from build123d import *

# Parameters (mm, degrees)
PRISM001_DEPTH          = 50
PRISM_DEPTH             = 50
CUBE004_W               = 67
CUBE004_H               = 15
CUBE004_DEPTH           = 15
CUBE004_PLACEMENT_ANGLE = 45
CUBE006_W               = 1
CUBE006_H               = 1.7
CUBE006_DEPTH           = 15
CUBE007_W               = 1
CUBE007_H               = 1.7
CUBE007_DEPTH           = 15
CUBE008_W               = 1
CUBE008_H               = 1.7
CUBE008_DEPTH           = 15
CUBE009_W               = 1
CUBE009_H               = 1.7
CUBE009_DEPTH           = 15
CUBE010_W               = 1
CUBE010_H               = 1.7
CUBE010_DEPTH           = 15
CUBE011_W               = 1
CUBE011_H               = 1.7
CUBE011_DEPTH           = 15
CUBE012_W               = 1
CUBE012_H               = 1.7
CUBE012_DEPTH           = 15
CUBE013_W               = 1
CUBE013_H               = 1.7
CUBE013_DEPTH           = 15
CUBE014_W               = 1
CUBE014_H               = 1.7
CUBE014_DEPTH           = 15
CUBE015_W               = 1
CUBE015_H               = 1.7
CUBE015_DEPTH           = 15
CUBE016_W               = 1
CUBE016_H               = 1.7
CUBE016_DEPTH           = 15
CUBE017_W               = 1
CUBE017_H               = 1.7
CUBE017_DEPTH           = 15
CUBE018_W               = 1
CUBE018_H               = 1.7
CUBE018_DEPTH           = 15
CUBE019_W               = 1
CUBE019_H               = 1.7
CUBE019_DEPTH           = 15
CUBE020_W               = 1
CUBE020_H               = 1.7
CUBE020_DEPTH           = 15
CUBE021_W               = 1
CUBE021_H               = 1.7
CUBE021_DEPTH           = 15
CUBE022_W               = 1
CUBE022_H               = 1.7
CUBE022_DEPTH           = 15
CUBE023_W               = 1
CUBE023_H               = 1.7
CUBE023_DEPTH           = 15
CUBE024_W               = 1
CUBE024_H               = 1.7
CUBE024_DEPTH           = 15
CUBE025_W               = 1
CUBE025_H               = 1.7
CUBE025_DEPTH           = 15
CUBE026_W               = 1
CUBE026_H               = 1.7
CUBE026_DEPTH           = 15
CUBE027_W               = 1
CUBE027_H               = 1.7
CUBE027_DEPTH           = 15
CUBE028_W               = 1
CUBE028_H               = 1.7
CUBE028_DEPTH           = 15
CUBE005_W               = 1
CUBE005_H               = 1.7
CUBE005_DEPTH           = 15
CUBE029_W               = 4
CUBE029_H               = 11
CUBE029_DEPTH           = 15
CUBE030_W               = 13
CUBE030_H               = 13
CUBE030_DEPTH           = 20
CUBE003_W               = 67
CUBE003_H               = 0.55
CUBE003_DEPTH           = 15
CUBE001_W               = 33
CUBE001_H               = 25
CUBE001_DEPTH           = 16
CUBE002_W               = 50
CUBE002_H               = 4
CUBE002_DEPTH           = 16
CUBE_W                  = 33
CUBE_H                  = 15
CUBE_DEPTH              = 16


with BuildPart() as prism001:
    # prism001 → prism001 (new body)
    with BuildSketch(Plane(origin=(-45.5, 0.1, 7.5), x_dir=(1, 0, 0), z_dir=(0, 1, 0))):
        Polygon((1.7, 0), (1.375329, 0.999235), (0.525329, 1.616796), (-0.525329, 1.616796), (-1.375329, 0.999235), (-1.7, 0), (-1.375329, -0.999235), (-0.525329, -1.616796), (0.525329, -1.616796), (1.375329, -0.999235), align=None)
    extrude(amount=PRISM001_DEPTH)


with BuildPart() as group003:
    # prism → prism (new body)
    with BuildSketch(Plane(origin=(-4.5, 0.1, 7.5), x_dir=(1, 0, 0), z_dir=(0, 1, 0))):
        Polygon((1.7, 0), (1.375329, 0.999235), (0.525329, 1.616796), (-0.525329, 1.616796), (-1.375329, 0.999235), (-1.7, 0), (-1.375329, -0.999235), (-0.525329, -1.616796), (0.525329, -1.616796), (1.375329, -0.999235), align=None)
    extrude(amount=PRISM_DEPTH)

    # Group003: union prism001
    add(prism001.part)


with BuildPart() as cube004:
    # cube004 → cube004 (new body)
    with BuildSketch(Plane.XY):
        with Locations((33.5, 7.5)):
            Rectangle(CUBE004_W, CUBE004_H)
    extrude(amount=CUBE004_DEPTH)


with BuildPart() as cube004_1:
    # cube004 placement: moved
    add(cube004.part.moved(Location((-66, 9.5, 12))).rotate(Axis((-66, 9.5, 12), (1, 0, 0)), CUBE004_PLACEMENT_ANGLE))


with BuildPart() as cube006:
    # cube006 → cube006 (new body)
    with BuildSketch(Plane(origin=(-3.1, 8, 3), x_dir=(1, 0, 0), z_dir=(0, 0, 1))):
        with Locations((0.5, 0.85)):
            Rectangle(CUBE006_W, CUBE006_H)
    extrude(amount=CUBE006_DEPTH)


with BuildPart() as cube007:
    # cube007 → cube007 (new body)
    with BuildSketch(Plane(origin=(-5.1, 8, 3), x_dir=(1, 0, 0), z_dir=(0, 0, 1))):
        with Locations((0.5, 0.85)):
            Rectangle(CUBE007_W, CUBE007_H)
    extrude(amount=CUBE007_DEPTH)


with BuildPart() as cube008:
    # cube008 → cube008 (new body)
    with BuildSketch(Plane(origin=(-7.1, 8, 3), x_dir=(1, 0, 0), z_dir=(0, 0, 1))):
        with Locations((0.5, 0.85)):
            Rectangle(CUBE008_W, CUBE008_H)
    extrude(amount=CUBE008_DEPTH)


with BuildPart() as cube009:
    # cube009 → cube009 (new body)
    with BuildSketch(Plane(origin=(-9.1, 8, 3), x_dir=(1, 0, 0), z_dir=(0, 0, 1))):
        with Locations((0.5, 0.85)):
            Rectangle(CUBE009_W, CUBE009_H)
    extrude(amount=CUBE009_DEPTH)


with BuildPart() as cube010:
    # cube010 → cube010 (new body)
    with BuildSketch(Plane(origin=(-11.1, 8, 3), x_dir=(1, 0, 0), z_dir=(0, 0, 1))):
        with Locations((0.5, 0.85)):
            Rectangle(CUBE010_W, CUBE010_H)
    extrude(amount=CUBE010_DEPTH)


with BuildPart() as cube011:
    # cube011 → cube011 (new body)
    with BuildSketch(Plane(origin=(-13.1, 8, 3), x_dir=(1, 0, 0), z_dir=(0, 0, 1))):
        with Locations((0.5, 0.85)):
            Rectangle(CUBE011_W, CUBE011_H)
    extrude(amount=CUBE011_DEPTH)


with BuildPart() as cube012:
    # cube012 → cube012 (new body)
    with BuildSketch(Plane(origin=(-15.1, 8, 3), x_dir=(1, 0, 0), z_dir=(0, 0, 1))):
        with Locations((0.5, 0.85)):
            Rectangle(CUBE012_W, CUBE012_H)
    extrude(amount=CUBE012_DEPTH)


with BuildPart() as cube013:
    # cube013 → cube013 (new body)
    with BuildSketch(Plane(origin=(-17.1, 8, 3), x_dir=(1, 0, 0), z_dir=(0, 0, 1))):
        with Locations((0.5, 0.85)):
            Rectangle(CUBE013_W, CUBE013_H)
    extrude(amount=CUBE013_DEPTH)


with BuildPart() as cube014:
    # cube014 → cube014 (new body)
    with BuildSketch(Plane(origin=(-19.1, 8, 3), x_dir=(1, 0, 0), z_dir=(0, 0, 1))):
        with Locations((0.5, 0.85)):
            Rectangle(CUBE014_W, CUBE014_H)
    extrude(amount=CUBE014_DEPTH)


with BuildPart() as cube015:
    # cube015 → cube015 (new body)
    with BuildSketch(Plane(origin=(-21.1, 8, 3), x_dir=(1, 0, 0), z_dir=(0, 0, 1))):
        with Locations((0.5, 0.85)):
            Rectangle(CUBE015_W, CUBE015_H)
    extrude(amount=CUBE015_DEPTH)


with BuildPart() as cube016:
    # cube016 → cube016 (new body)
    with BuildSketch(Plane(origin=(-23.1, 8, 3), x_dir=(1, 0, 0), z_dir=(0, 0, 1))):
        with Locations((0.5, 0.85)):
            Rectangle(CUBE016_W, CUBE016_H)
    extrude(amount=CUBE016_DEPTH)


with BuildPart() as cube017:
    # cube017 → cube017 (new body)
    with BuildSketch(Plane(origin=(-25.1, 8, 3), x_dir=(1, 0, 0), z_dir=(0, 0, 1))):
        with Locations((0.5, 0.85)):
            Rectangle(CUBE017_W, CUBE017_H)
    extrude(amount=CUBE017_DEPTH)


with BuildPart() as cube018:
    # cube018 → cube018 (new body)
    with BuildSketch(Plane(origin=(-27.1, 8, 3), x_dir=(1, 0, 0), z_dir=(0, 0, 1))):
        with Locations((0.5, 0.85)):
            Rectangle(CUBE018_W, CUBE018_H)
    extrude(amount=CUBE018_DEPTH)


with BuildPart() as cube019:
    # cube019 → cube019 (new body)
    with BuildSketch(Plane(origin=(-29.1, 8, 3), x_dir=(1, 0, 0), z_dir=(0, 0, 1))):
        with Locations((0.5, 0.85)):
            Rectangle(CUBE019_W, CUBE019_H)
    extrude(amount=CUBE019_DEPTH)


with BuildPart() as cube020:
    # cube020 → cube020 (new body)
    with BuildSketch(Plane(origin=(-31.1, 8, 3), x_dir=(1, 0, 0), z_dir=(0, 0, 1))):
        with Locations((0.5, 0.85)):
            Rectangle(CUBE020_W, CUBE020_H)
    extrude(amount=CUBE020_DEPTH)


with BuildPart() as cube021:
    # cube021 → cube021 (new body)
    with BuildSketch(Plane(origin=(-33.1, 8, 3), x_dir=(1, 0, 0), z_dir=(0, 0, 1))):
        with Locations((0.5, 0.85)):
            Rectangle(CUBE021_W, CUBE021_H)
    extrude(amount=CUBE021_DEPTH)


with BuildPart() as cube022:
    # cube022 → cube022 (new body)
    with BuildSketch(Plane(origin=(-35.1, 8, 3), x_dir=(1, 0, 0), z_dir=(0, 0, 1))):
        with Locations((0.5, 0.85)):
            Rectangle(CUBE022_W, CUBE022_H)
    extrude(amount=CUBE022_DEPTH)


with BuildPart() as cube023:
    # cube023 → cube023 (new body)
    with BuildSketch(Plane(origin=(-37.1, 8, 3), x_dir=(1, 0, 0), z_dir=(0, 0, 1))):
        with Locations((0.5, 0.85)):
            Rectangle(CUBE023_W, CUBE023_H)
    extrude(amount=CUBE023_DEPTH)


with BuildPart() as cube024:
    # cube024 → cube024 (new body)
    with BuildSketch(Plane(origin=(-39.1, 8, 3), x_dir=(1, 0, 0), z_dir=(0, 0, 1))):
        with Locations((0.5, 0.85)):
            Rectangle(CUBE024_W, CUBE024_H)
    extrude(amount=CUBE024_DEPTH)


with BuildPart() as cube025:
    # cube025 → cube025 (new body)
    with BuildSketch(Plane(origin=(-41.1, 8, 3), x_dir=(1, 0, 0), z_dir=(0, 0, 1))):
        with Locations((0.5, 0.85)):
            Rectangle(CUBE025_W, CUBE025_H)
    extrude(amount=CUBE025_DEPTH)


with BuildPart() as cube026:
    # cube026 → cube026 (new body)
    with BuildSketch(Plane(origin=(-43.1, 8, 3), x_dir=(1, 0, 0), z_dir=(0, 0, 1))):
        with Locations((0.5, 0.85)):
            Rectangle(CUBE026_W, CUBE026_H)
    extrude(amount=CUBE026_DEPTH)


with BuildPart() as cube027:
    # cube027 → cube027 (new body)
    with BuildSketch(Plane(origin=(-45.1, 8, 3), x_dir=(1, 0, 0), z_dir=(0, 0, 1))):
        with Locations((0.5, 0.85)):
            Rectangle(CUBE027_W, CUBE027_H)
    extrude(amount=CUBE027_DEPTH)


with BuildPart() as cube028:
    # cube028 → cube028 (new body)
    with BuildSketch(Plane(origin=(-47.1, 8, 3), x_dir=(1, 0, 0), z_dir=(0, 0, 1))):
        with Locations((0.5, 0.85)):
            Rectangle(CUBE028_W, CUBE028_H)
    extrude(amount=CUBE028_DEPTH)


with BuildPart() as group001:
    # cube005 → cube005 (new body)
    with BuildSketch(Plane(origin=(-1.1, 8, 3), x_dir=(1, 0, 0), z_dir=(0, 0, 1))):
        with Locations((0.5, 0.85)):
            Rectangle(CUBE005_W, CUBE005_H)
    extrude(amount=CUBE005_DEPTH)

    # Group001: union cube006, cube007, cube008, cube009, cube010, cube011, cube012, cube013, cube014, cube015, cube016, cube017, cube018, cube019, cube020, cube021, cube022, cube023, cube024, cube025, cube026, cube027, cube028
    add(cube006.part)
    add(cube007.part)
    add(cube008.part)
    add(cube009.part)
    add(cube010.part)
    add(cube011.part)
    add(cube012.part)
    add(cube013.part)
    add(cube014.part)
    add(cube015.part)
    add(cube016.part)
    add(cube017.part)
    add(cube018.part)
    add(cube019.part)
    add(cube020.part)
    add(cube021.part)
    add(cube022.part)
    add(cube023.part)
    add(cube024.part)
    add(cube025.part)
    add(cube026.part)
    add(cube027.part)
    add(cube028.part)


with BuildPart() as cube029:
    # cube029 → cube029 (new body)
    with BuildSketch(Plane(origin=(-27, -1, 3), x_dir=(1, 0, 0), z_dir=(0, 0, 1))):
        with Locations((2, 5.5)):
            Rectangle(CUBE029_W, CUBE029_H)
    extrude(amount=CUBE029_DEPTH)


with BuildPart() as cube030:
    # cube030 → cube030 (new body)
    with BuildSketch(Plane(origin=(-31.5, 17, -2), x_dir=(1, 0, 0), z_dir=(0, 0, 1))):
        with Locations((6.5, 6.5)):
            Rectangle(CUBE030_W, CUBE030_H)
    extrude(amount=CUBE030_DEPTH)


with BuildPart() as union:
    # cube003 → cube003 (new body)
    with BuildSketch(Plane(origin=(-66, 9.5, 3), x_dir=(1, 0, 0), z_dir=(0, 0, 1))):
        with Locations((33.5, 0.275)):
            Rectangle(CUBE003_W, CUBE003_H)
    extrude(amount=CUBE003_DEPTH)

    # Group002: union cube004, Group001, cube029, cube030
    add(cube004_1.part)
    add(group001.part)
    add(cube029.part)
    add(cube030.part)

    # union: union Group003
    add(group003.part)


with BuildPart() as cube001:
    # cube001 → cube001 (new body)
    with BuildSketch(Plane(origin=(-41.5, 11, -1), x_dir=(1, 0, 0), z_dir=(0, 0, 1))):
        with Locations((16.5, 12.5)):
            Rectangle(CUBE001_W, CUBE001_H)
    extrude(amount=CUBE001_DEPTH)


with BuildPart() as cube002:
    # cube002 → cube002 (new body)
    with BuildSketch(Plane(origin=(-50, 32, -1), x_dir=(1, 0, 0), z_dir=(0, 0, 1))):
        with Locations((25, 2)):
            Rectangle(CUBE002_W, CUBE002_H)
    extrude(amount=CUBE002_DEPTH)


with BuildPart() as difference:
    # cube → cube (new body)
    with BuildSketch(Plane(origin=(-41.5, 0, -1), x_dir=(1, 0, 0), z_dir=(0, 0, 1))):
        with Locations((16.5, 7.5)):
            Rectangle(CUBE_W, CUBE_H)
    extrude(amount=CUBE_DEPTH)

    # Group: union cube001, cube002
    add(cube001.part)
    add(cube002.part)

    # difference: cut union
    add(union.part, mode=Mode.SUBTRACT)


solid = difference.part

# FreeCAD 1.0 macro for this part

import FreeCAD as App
import Part
import Sketcher
from FreeCAD import Vector
Q = App.Units.Quantity


def add_polygon(sketch, points):
    """Adds a closed chain of lines whose ends are joined by coincident constraints."""
    first, n = sketch.GeometryCount, len(points)
    for a, b in zip(points, points[1:] + points[:1]):
        sketch.addGeometry(Part.LineSegment(App.Vector(*a, 0), App.Vector(*b, 0)), False)
    for i in range(n):
        sketch.addConstraint(Sketcher.Constraint("Coincident", first + i, 2, first + (i + 1) % n, 1))

doc = App.newDocument("Part")
body = doc.addObject("PartDesign::Body", "Body")

sketch1 = body.newObject("Sketcher::SketchObject", "Sketch")
sketch1.AttachmentSupport = (doc.getObject("XZ_Plane"), [""])
sketch1.MapMode = "FlatFace"
sketch1.AttachmentOffset = App.Placement(Vector(0, 0, -0.1), App.Rotation())
add_polygon(sketch1, [(-43.8, 7.5), (-44.1, 6.5), (-45, 5.9), (-46, 5.9), (-46.9, 6.5), (-47.2, 7.5), (-46.9, 8.5), (-46, 9.1), (-45, 9.1), (-44.1, 8.5)])
sketch1.addConstraint(Sketcher.Constraint("Horizontal", 2))
sketch1.addConstraint(Sketcher.Constraint("Horizontal", 7))
sketch1.addConstraint(Sketcher.Constraint("Parallel", 0, 5))
sketch1.addConstraint(Sketcher.Constraint("Parallel", 1, 6))
sketch1.addConstraint(Sketcher.Constraint("Parallel", 3, 8))
sketch1.addConstraint(Sketcher.Constraint("Parallel", 4, 9))
sketch1.addConstraint(Sketcher.Constraint("Horizontal", 0, 2, 3, 2))
sketch1.addConstraint(Sketcher.Constraint("Horizontal", 5, 2, 8, 2))
sketch1.addConstraint(Sketcher.Constraint("Horizontal", 4, 2, 9, 2))
sketch1.addConstraint(Sketcher.Constraint("Vertical", 3, 2, 5, 2))
sketch1.addConstraint(Sketcher.Constraint("Vertical", 2, 2, 6, 2))
sketch1.addConstraint(Sketcher.Constraint("Vertical", 1, 2, 7, 2))
sketch1.addConstraint(Sketcher.Constraint("Vertical", 0, 2, 8, 2))
sketch1.addConstraint(Sketcher.Constraint("Equal", 0, 1))
sketch1.addConstraint(Sketcher.Constraint("Angle", 0, Q("-107.999993 deg")))
sketch1.addConstraint(Sketcher.Constraint("Angle", 1, Q("-144.000007 deg")))
sketch1.addConstraint(Sketcher.Constraint("DistanceX", 4, 2, -1, 1, 47.2))
sketch1.addConstraint(Sketcher.Constraint("DistanceY", -1, 1, 4, 2, 7.5))
sketch1.addConstraint(Sketcher.Constraint("DistanceX", 9, 2, -1, 1, 43.8))
sketch1.addConstraint(Sketcher.Constraint("DistanceX", 1, 2, 0, 2, 0.85))
pad1 = body.newObject("PartDesign::Pad", "Pad")
pad1.Profile = sketch1
pad1.Length = 50
pad1.Reversed = True
body2 = doc.addObject("PartDesign::Body", "Body001")
body2.AllowCompound = True

sketch2 = body2.newObject("Sketcher::SketchObject", "Sketch001")
sketch2.AttachmentSupport = (doc.getObject("XZ_Plane001"), [""])
sketch2.MapMode = "FlatFace"
sketch2.AttachmentOffset = App.Placement(Vector(0, 0, -0.1), App.Rotation())
add_polygon(sketch2, [(-2.8, 7.5), (-3.1, 6.5), (-4, 5.9), (-5, 5.9), (-5.9, 6.5), (-6.2, 7.5), (-5.9, 8.5), (-5, 9.1), (-4, 9.1), (-3.1, 8.5)])
sketch2.addConstraint(Sketcher.Constraint("Horizontal", 2))
sketch2.addConstraint(Sketcher.Constraint("Horizontal", 7))
sketch2.addConstraint(Sketcher.Constraint("Parallel", 0, 5))
sketch2.addConstraint(Sketcher.Constraint("Parallel", 1, 6))
sketch2.addConstraint(Sketcher.Constraint("Parallel", 3, 8))
sketch2.addConstraint(Sketcher.Constraint("Parallel", 4, 9))
sketch2.addConstraint(Sketcher.Constraint("Horizontal", 0, 2, 3, 2))
sketch2.addConstraint(Sketcher.Constraint("Horizontal", 5, 2, 8, 2))
sketch2.addConstraint(Sketcher.Constraint("Horizontal", 4, 2, 9, 2))
sketch2.addConstraint(Sketcher.Constraint("Vertical", 3, 2, 5, 2))
sketch2.addConstraint(Sketcher.Constraint("Vertical", 2, 2, 6, 2))
sketch2.addConstraint(Sketcher.Constraint("Vertical", 1, 2, 7, 2))
sketch2.addConstraint(Sketcher.Constraint("Vertical", 0, 2, 8, 2))
sketch2.addConstraint(Sketcher.Constraint("Equal", 0, 1))
sketch2.addConstraint(Sketcher.Constraint("Angle", 0, Q("-107.999993 deg")))
sketch2.addConstraint(Sketcher.Constraint("Angle", 1, Q("-144.000007 deg")))
sketch2.addConstraint(Sketcher.Constraint("DistanceX", 4, 2, -1, 1, 6.2))
sketch2.addConstraint(Sketcher.Constraint("DistanceY", -1, 1, 4, 2, 7.5))
sketch2.addConstraint(Sketcher.Constraint("DistanceX", 9, 2, -1, 1, 2.8))
sketch2.addConstraint(Sketcher.Constraint("DistanceX", 1, 2, 0, 2, 0.85))
pad2 = body2.newObject("PartDesign::Pad", "Pad001")
pad2.Profile = sketch2
pad2.Length = 50
pad2.Reversed = True
doc.recompute()

boolean = body2.newObject("PartDesign::Boolean", "Boolean")
boolean.Type = "Fuse"
boolean.addObjects([body])
body3 = doc.addObject("PartDesign::Body", "Body002")

sketch3 = body3.newObject("Sketcher::SketchObject", "Sketch002")
sketch3.AttachmentSupport = (doc.getObject("XY_Plane002"), [""])
sketch3.MapMode = "FlatFace"
add_polygon(sketch3, [(0, 15), (0, 0), (67, 0), (67, 15)])
sketch3.addConstraint(Sketcher.Constraint("Vertical", 0))
sketch3.addConstraint(Sketcher.Constraint("Horizontal", 1))
sketch3.addConstraint(Sketcher.Constraint("Vertical", 2))
sketch3.addConstraint(Sketcher.Constraint("Horizontal", 3))
sketch3.addConstraint(Sketcher.Constraint("Coincident", 0, 2, -1, 1))
sketch3.addConstraint(Sketcher.Constraint("DistanceX", 1, 1, 1, 2, 67.0))
sketch3.addConstraint(Sketcher.Constraint("DistanceY", 0, 2, 0, 1, 15.0))
pad3 = body3.newObject("PartDesign::Pad", "Pad002")
pad3.Profile = sketch3
pad3.Length = 15
body4 = doc.addObject("PartDesign::Body", "Body003")
doc.recompute()

body3.Placement = App.Placement(Vector(-66, 9.5, 12), App.Rotation(Vector(1, 0, 0), 45))
boolean2 = body4.newObject("PartDesign::Boolean", "Boolean001")
boolean2.Type = "Fuse"
boolean2.addObjects([body3])
body5 = doc.addObject("PartDesign::Body", "Body004")

sketch4 = body5.newObject("Sketcher::SketchObject", "Sketch003")
sketch4.AttachmentSupport = (doc.getObject("XY_Plane004"), [""])
sketch4.MapMode = "FlatFace"
sketch4.AttachmentOffset = App.Placement(Vector(0, 0, 3), App.Rotation())
add_polygon(sketch4, [(-3.1, 9.7), (-3.1, 8), (-2.1, 8), (-2.1, 9.7)])
sketch4.addConstraint(Sketcher.Constraint("Vertical", 0))
sketch4.addConstraint(Sketcher.Constraint("Horizontal", 1))
sketch4.addConstraint(Sketcher.Constraint("Vertical", 2))
sketch4.addConstraint(Sketcher.Constraint("Horizontal", 3))
sketch4.addConstraint(Sketcher.Constraint("DistanceX", 1, 1, 1, 2, 1.0))
sketch4.addConstraint(Sketcher.Constraint("DistanceY", 0, 2, 0, 1, 1.7))
sketch4.addConstraint(Sketcher.Constraint("DistanceY", -1, 1, 0, 2, 8.0))
sketch4.addConstraint(Sketcher.Constraint("DistanceX", 0, 2, -1, 1, 3.1))
pad4 = body5.newObject("PartDesign::Pad", "Pad003")
pad4.Profile = sketch4
pad4.Length = 15
body6 = doc.addObject("PartDesign::Body", "Body005")

sketch5 = body6.newObject("Sketcher::SketchObject", "Sketch004")
sketch5.AttachmentSupport = (doc.getObject("XY_Plane005"), [""])
sketch5.MapMode = "FlatFace"
sketch5.AttachmentOffset = App.Placement(Vector(0, 0, 3), App.Rotation())
add_polygon(sketch5, [(-5.1, 9.7), (-5.1, 8), (-4.1, 8), (-4.1, 9.7)])
sketch5.addConstraint(Sketcher.Constraint("Vertical", 0))
sketch5.addConstraint(Sketcher.Constraint("Horizontal", 1))
sketch5.addConstraint(Sketcher.Constraint("Vertical", 2))
sketch5.addConstraint(Sketcher.Constraint("Horizontal", 3))
sketch5.addConstraint(Sketcher.Constraint("DistanceX", 1, 1, 1, 2, 1.0))
sketch5.addConstraint(Sketcher.Constraint("DistanceY", 0, 2, 0, 1, 1.7))
sketch5.addConstraint(Sketcher.Constraint("DistanceY", -1, 1, 0, 2, 8.0))
sketch5.addConstraint(Sketcher.Constraint("DistanceX", 0, 2, -1, 1, 5.1))
pad5 = body6.newObject("PartDesign::Pad", "Pad004")
pad5.Profile = sketch5
pad5.Length = 15
body7 = doc.addObject("PartDesign::Body", "Body006")

sketch6 = body7.newObject("Sketcher::SketchObject", "Sketch005")
sketch6.AttachmentSupport = (doc.getObject("XY_Plane006"), [""])
sketch6.MapMode = "FlatFace"
sketch6.AttachmentOffset = App.Placement(Vector(0, 0, 3), App.Rotation())
add_polygon(sketch6, [(-7.1, 9.7), (-7.1, 8), (-6.1, 8), (-6.1, 9.7)])
sketch6.addConstraint(Sketcher.Constraint("Vertical", 0))
sketch6.addConstraint(Sketcher.Constraint("Horizontal", 1))
sketch6.addConstraint(Sketcher.Constraint("Vertical", 2))
sketch6.addConstraint(Sketcher.Constraint("Horizontal", 3))
sketch6.addConstraint(Sketcher.Constraint("DistanceX", 1, 1, 1, 2, 1.0))
sketch6.addConstraint(Sketcher.Constraint("DistanceY", 0, 2, 0, 1, 1.7))
sketch6.addConstraint(Sketcher.Constraint("DistanceY", -1, 1, 0, 2, 8.0))
sketch6.addConstraint(Sketcher.Constraint("DistanceX", 0, 2, -1, 1, 7.1))
pad6 = body7.newObject("PartDesign::Pad", "Pad005")
pad6.Profile = sketch6
pad6.Length = 15
body8 = doc.addObject("PartDesign::Body", "Body007")

sketch7 = body8.newObject("Sketcher::SketchObject", "Sketch006")
sketch7.AttachmentSupport = (doc.getObject("XY_Plane007"), [""])
sketch7.MapMode = "FlatFace"
sketch7.AttachmentOffset = App.Placement(Vector(0, 0, 3), App.Rotation())
add_polygon(sketch7, [(-9.1, 9.7), (-9.1, 8), (-8.1, 8), (-8.1, 9.7)])
sketch7.addConstraint(Sketcher.Constraint("Vertical", 0))
sketch7.addConstraint(Sketcher.Constraint("Horizontal", 1))
sketch7.addConstraint(Sketcher.Constraint("Vertical", 2))
sketch7.addConstraint(Sketcher.Constraint("Horizontal", 3))
sketch7.addConstraint(Sketcher.Constraint("DistanceX", 1, 1, 1, 2, 1.0))
sketch7.addConstraint(Sketcher.Constraint("DistanceY", 0, 2, 0, 1, 1.7))
sketch7.addConstraint(Sketcher.Constraint("DistanceY", -1, 1, 0, 2, 8.0))
sketch7.addConstraint(Sketcher.Constraint("DistanceX", 0, 2, -1, 1, 9.1))
pad7 = body8.newObject("PartDesign::Pad", "Pad006")
pad7.Profile = sketch7
pad7.Length = 15
body9 = doc.addObject("PartDesign::Body", "Body008")

sketch8 = body9.newObject("Sketcher::SketchObject", "Sketch007")
sketch8.AttachmentSupport = (doc.getObject("XY_Plane008"), [""])
sketch8.MapMode = "FlatFace"
sketch8.AttachmentOffset = App.Placement(Vector(0, 0, 3), App.Rotation())
add_polygon(sketch8, [(-11.1, 9.7), (-11.1, 8), (-10.1, 8), (-10.1, 9.7)])
sketch8.addConstraint(Sketcher.Constraint("Vertical", 0))
sketch8.addConstraint(Sketcher.Constraint("Horizontal", 1))
sketch8.addConstraint(Sketcher.Constraint("Vertical", 2))
sketch8.addConstraint(Sketcher.Constraint("Horizontal", 3))
sketch8.addConstraint(Sketcher.Constraint("DistanceX", 1, 1, 1, 2, 1.0))
sketch8.addConstraint(Sketcher.Constraint("DistanceY", 0, 2, 0, 1, 1.7))
sketch8.addConstraint(Sketcher.Constraint("DistanceY", -1, 1, 0, 2, 8.0))
sketch8.addConstraint(Sketcher.Constraint("DistanceX", 0, 2, -1, 1, 11.1))
pad8 = body9.newObject("PartDesign::Pad", "Pad007")
pad8.Profile = sketch8
pad8.Length = 15
body10 = doc.addObject("PartDesign::Body", "Body009")

sketch9 = body10.newObject("Sketcher::SketchObject", "Sketch008")
sketch9.AttachmentSupport = (doc.getObject("XY_Plane009"), [""])
sketch9.MapMode = "FlatFace"
sketch9.AttachmentOffset = App.Placement(Vector(0, 0, 3), App.Rotation())
add_polygon(sketch9, [(-13.1, 9.7), (-13.1, 8), (-12.1, 8), (-12.1, 9.7)])
sketch9.addConstraint(Sketcher.Constraint("Vertical", 0))
sketch9.addConstraint(Sketcher.Constraint("Horizontal", 1))
sketch9.addConstraint(Sketcher.Constraint("Vertical", 2))
sketch9.addConstraint(Sketcher.Constraint("Horizontal", 3))
sketch9.addConstraint(Sketcher.Constraint("DistanceX", 1, 1, 1, 2, 1.0))
sketch9.addConstraint(Sketcher.Constraint("DistanceY", 0, 2, 0, 1, 1.7))
sketch9.addConstraint(Sketcher.Constraint("DistanceY", -1, 1, 0, 2, 8.0))
sketch9.addConstraint(Sketcher.Constraint("DistanceX", 0, 2, -1, 1, 13.1))
pad9 = body10.newObject("PartDesign::Pad", "Pad008")
pad9.Profile = sketch9
pad9.Length = 15
body11 = doc.addObject("PartDesign::Body", "Body010")

sketch10 = body11.newObject("Sketcher::SketchObject", "Sketch009")
sketch10.AttachmentSupport = (doc.getObject("XY_Plane010"), [""])
sketch10.MapMode = "FlatFace"
sketch10.AttachmentOffset = App.Placement(Vector(0, 0, 3), App.Rotation())
add_polygon(sketch10, [(-15.1, 9.7), (-15.1, 8), (-14.1, 8), (-14.1, 9.7)])
sketch10.addConstraint(Sketcher.Constraint("Vertical", 0))
sketch10.addConstraint(Sketcher.Constraint("Horizontal", 1))
sketch10.addConstraint(Sketcher.Constraint("Vertical", 2))
sketch10.addConstraint(Sketcher.Constraint("Horizontal", 3))
sketch10.addConstraint(Sketcher.Constraint("DistanceX", 1, 1, 1, 2, 1.0))
sketch10.addConstraint(Sketcher.Constraint("DistanceY", 0, 2, 0, 1, 1.7))
sketch10.addConstraint(Sketcher.Constraint("DistanceY", -1, 1, 0, 2, 8.0))
sketch10.addConstraint(Sketcher.Constraint("DistanceX", 0, 2, -1, 1, 15.1))
pad10 = body11.newObject("PartDesign::Pad", "Pad009")
pad10.Profile = sketch10
pad10.Length = 15
body12 = doc.addObject("PartDesign::Body", "Body011")

sketch11 = body12.newObject("Sketcher::SketchObject", "Sketch010")
sketch11.AttachmentSupport = (doc.getObject("XY_Plane011"), [""])
sketch11.MapMode = "FlatFace"
sketch11.AttachmentOffset = App.Placement(Vector(0, 0, 3), App.Rotation())
add_polygon(sketch11, [(-17.1, 9.7), (-17.1, 8), (-16.1, 8), (-16.1, 9.7)])
sketch11.addConstraint(Sketcher.Constraint("Vertical", 0))
sketch11.addConstraint(Sketcher.Constraint("Horizontal", 1))
sketch11.addConstraint(Sketcher.Constraint("Vertical", 2))
sketch11.addConstraint(Sketcher.Constraint("Horizontal", 3))
sketch11.addConstraint(Sketcher.Constraint("DistanceX", 1, 1, 1, 2, 1.0))
sketch11.addConstraint(Sketcher.Constraint("DistanceY", 0, 2, 0, 1, 1.7))
sketch11.addConstraint(Sketcher.Constraint("DistanceY", -1, 1, 0, 2, 8.0))
sketch11.addConstraint(Sketcher.Constraint("DistanceX", 0, 2, -1, 1, 17.1))
pad11 = body12.newObject("PartDesign::Pad", "Pad010")
pad11.Profile = sketch11
pad11.Length = 15
body13 = doc.addObject("PartDesign::Body", "Body012")

sketch12 = body13.newObject("Sketcher::SketchObject", "Sketch011")
sketch12.AttachmentSupport = (doc.getObject("XY_Plane012"), [""])
sketch12.MapMode = "FlatFace"
sketch12.AttachmentOffset = App.Placement(Vector(0, 0, 3), App.Rotation())
add_polygon(sketch12, [(-19.1, 9.7), (-19.1, 8), (-18.1, 8), (-18.1, 9.7)])
sketch12.addConstraint(Sketcher.Constraint("Vertical", 0))
sketch12.addConstraint(Sketcher.Constraint("Horizontal", 1))
sketch12.addConstraint(Sketcher.Constraint("Vertical", 2))
sketch12.addConstraint(Sketcher.Constraint("Horizontal", 3))
sketch12.addConstraint(Sketcher.Constraint("DistanceX", 1, 1, 1, 2, 1.0))
sketch12.addConstraint(Sketcher.Constraint("DistanceY", 0, 2, 0, 1, 1.7))
sketch12.addConstraint(Sketcher.Constraint("DistanceY", -1, 1, 0, 2, 8.0))
sketch12.addConstraint(Sketcher.Constraint("DistanceX", 0, 2, -1, 1, 19.1))
pad12 = body13.newObject("PartDesign::Pad", "Pad011")
pad12.Profile = sketch12
pad12.Length = 15
body14 = doc.addObject("PartDesign::Body", "Body013")

sketch13 = body14.newObject("Sketcher::SketchObject", "Sketch012")
sketch13.AttachmentSupport = (doc.getObject("XY_Plane013"), [""])
sketch13.MapMode = "FlatFace"
sketch13.AttachmentOffset = App.Placement(Vector(0, 0, 3), App.Rotation())
add_polygon(sketch13, [(-21.1, 9.7), (-21.1, 8), (-20.1, 8), (-20.1, 9.7)])
sketch13.addConstraint(Sketcher.Constraint("Vertical", 0))
sketch13.addConstraint(Sketcher.Constraint("Horizontal", 1))
sketch13.addConstraint(Sketcher.Constraint("Vertical", 2))
sketch13.addConstraint(Sketcher.Constraint("Horizontal", 3))
sketch13.addConstraint(Sketcher.Constraint("DistanceX", 1, 1, 1, 2, 1.0))
sketch13.addConstraint(Sketcher.Constraint("DistanceY", 0, 2, 0, 1, 1.7))
sketch13.addConstraint(Sketcher.Constraint("DistanceY", -1, 1, 0, 2, 8.0))
sketch13.addConstraint(Sketcher.Constraint("DistanceX", 0, 2, -1, 1, 21.1))
pad13 = body14.newObject("PartDesign::Pad", "Pad012")
pad13.Profile = sketch13
pad13.Length = 15
body15 = doc.addObject("PartDesign::Body", "Body014")

sketch14 = body15.newObject("Sketcher::SketchObject", "Sketch013")
sketch14.AttachmentSupport = (doc.getObject("XY_Plane014"), [""])
sketch14.MapMode = "FlatFace"
sketch14.AttachmentOffset = App.Placement(Vector(0, 0, 3), App.Rotation())
add_polygon(sketch14, [(-23.1, 9.7), (-23.1, 8), (-22.1, 8), (-22.1, 9.7)])
sketch14.addConstraint(Sketcher.Constraint("Vertical", 0))
sketch14.addConstraint(Sketcher.Constraint("Horizontal", 1))
sketch14.addConstraint(Sketcher.Constraint("Vertical", 2))
sketch14.addConstraint(Sketcher.Constraint("Horizontal", 3))
sketch14.addConstraint(Sketcher.Constraint("DistanceX", 1, 1, 1, 2, 1.0))
sketch14.addConstraint(Sketcher.Constraint("DistanceY", 0, 2, 0, 1, 1.7))
sketch14.addConstraint(Sketcher.Constraint("DistanceY", -1, 1, 0, 2, 8.0))
sketch14.addConstraint(Sketcher.Constraint("DistanceX", 0, 2, -1, 1, 23.1))
pad14 = body15.newObject("PartDesign::Pad", "Pad013")
pad14.Profile = sketch14
pad14.Length = 15
body16 = doc.addObject("PartDesign::Body", "Body015")

sketch15 = body16.newObject("Sketcher::SketchObject", "Sketch014")
sketch15.AttachmentSupport = (doc.getObject("XY_Plane015"), [""])
sketch15.MapMode = "FlatFace"
sketch15.AttachmentOffset = App.Placement(Vector(0, 0, 3), App.Rotation())
add_polygon(sketch15, [(-25.1, 9.7), (-25.1, 8), (-24.1, 8), (-24.1, 9.7)])
sketch15.addConstraint(Sketcher.Constraint("Vertical", 0))
sketch15.addConstraint(Sketcher.Constraint("Horizontal", 1))
sketch15.addConstraint(Sketcher.Constraint("Vertical", 2))
sketch15.addConstraint(Sketcher.Constraint("Horizontal", 3))
sketch15.addConstraint(Sketcher.Constraint("DistanceX", 1, 1, 1, 2, 1.0))
sketch15.addConstraint(Sketcher.Constraint("DistanceY", 0, 2, 0, 1, 1.7))
sketch15.addConstraint(Sketcher.Constraint("DistanceY", -1, 1, 0, 2, 8.0))
sketch15.addConstraint(Sketcher.Constraint("DistanceX", 0, 2, -1, 1, 25.1))
pad15 = body16.newObject("PartDesign::Pad", "Pad014")
pad15.Profile = sketch15
pad15.Length = 15
body17 = doc.addObject("PartDesign::Body", "Body016")

sketch16 = body17.newObject("Sketcher::SketchObject", "Sketch015")
sketch16.AttachmentSupport = (doc.getObject("XY_Plane016"), [""])
sketch16.MapMode = "FlatFace"
sketch16.AttachmentOffset = App.Placement(Vector(0, 0, 3), App.Rotation())
add_polygon(sketch16, [(-27.1, 9.7), (-27.1, 8), (-26.1, 8), (-26.1, 9.7)])
sketch16.addConstraint(Sketcher.Constraint("Vertical", 0))
sketch16.addConstraint(Sketcher.Constraint("Horizontal", 1))
sketch16.addConstraint(Sketcher.Constraint("Vertical", 2))
sketch16.addConstraint(Sketcher.Constraint("Horizontal", 3))
sketch16.addConstraint(Sketcher.Constraint("DistanceX", 1, 1, 1, 2, 1.0))
sketch16.addConstraint(Sketcher.Constraint("DistanceY", 0, 2, 0, 1, 1.7))
sketch16.addConstraint(Sketcher.Constraint("DistanceY", -1, 1, 0, 2, 8.0))
sketch16.addConstraint(Sketcher.Constraint("DistanceX", 0, 2, -1, 1, 27.1))
pad16 = body17.newObject("PartDesign::Pad", "Pad015")
pad16.Profile = sketch16
pad16.Length = 15
body18 = doc.addObject("PartDesign::Body", "Body017")

sketch17 = body18.newObject("Sketcher::SketchObject", "Sketch016")
sketch17.AttachmentSupport = (doc.getObject("XY_Plane017"), [""])
sketch17.MapMode = "FlatFace"
sketch17.AttachmentOffset = App.Placement(Vector(0, 0, 3), App.Rotation())
add_polygon(sketch17, [(-29.1, 9.7), (-29.1, 8), (-28.1, 8), (-28.1, 9.7)])
sketch17.addConstraint(Sketcher.Constraint("Vertical", 0))
sketch17.addConstraint(Sketcher.Constraint("Horizontal", 1))
sketch17.addConstraint(Sketcher.Constraint("Vertical", 2))
sketch17.addConstraint(Sketcher.Constraint("Horizontal", 3))
sketch17.addConstraint(Sketcher.Constraint("DistanceX", 1, 1, 1, 2, 1.0))
sketch17.addConstraint(Sketcher.Constraint("DistanceY", 0, 2, 0, 1, 1.7))
sketch17.addConstraint(Sketcher.Constraint("DistanceY", -1, 1, 0, 2, 8.0))
sketch17.addConstraint(Sketcher.Constraint("DistanceX", 0, 2, -1, 1, 29.1))
pad17 = body18.newObject("PartDesign::Pad", "Pad016")
pad17.Profile = sketch17
pad17.Length = 15
body19 = doc.addObject("PartDesign::Body", "Body018")

sketch18 = body19.newObject("Sketcher::SketchObject", "Sketch017")
sketch18.AttachmentSupport = (doc.getObject("XY_Plane018"), [""])
sketch18.MapMode = "FlatFace"
sketch18.AttachmentOffset = App.Placement(Vector(0, 0, 3), App.Rotation())
add_polygon(sketch18, [(-31.1, 9.7), (-31.1, 8), (-30.1, 8), (-30.1, 9.7)])
sketch18.addConstraint(Sketcher.Constraint("Vertical", 0))
sketch18.addConstraint(Sketcher.Constraint("Horizontal", 1))
sketch18.addConstraint(Sketcher.Constraint("Vertical", 2))
sketch18.addConstraint(Sketcher.Constraint("Horizontal", 3))
sketch18.addConstraint(Sketcher.Constraint("DistanceX", 1, 1, 1, 2, 1.0))
sketch18.addConstraint(Sketcher.Constraint("DistanceY", 0, 2, 0, 1, 1.7))
sketch18.addConstraint(Sketcher.Constraint("DistanceY", -1, 1, 0, 2, 8.0))
sketch18.addConstraint(Sketcher.Constraint("DistanceX", 0, 2, -1, 1, 31.1))
pad18 = body19.newObject("PartDesign::Pad", "Pad017")
pad18.Profile = sketch18
pad18.Length = 15
body20 = doc.addObject("PartDesign::Body", "Body019")

sketch19 = body20.newObject("Sketcher::SketchObject", "Sketch018")
sketch19.AttachmentSupport = (doc.getObject("XY_Plane019"), [""])
sketch19.MapMode = "FlatFace"
sketch19.AttachmentOffset = App.Placement(Vector(0, 0, 3), App.Rotation())
add_polygon(sketch19, [(-33.1, 9.7), (-33.1, 8), (-32.1, 8), (-32.1, 9.7)])
sketch19.addConstraint(Sketcher.Constraint("Vertical", 0))
sketch19.addConstraint(Sketcher.Constraint("Horizontal", 1))
sketch19.addConstraint(Sketcher.Constraint("Vertical", 2))
sketch19.addConstraint(Sketcher.Constraint("Horizontal", 3))
sketch19.addConstraint(Sketcher.Constraint("DistanceX", 1, 1, 1, 2, 1.0))
sketch19.addConstraint(Sketcher.Constraint("DistanceY", 0, 2, 0, 1, 1.7))
sketch19.addConstraint(Sketcher.Constraint("DistanceY", -1, 1, 0, 2, 8.0))
sketch19.addConstraint(Sketcher.Constraint("DistanceX", 0, 2, -1, 1, 33.1))
pad19 = body20.newObject("PartDesign::Pad", "Pad018")
pad19.Profile = sketch19
pad19.Length = 15
body21 = doc.addObject("PartDesign::Body", "Body020")

sketch20 = body21.newObject("Sketcher::SketchObject", "Sketch019")
sketch20.AttachmentSupport = (doc.getObject("XY_Plane020"), [""])
sketch20.MapMode = "FlatFace"
sketch20.AttachmentOffset = App.Placement(Vector(0, 0, 3), App.Rotation())
add_polygon(sketch20, [(-35.1, 9.7), (-35.1, 8), (-34.1, 8), (-34.1, 9.7)])
sketch20.addConstraint(Sketcher.Constraint("Vertical", 0))
sketch20.addConstraint(Sketcher.Constraint("Horizontal", 1))
sketch20.addConstraint(Sketcher.Constraint("Vertical", 2))
sketch20.addConstraint(Sketcher.Constraint("Horizontal", 3))
sketch20.addConstraint(Sketcher.Constraint("DistanceX", 1, 1, 1, 2, 1.0))
sketch20.addConstraint(Sketcher.Constraint("DistanceY", 0, 2, 0, 1, 1.7))
sketch20.addConstraint(Sketcher.Constraint("DistanceY", -1, 1, 0, 2, 8.0))
sketch20.addConstraint(Sketcher.Constraint("DistanceX", 0, 2, -1, 1, 35.1))
pad20 = body21.newObject("PartDesign::Pad", "Pad019")
pad20.Profile = sketch20
pad20.Length = 15
body22 = doc.addObject("PartDesign::Body", "Body021")

sketch21 = body22.newObject("Sketcher::SketchObject", "Sketch020")
sketch21.AttachmentSupport = (doc.getObject("XY_Plane021"), [""])
sketch21.MapMode = "FlatFace"
sketch21.AttachmentOffset = App.Placement(Vector(0, 0, 3), App.Rotation())
add_polygon(sketch21, [(-37.1, 9.7), (-37.1, 8), (-36.1, 8), (-36.1, 9.7)])
sketch21.addConstraint(Sketcher.Constraint("Vertical", 0))
sketch21.addConstraint(Sketcher.Constraint("Horizontal", 1))
sketch21.addConstraint(Sketcher.Constraint("Vertical", 2))
sketch21.addConstraint(Sketcher.Constraint("Horizontal", 3))
sketch21.addConstraint(Sketcher.Constraint("DistanceX", 1, 1, 1, 2, 1.0))
sketch21.addConstraint(Sketcher.Constraint("DistanceY", 0, 2, 0, 1, 1.7))
sketch21.addConstraint(Sketcher.Constraint("DistanceY", -1, 1, 0, 2, 8.0))
sketch21.addConstraint(Sketcher.Constraint("DistanceX", 0, 2, -1, 1, 37.1))
pad21 = body22.newObject("PartDesign::Pad", "Pad020")
pad21.Profile = sketch21
pad21.Length = 15
body23 = doc.addObject("PartDesign::Body", "Body022")

sketch22 = body23.newObject("Sketcher::SketchObject", "Sketch021")
sketch22.AttachmentSupport = (doc.getObject("XY_Plane022"), [""])
sketch22.MapMode = "FlatFace"
sketch22.AttachmentOffset = App.Placement(Vector(0, 0, 3), App.Rotation())
add_polygon(sketch22, [(-39.1, 9.7), (-39.1, 8), (-38.1, 8), (-38.1, 9.7)])
sketch22.addConstraint(Sketcher.Constraint("Vertical", 0))
sketch22.addConstraint(Sketcher.Constraint("Horizontal", 1))
sketch22.addConstraint(Sketcher.Constraint("Vertical", 2))
sketch22.addConstraint(Sketcher.Constraint("Horizontal", 3))
sketch22.addConstraint(Sketcher.Constraint("DistanceX", 1, 1, 1, 2, 1.0))
sketch22.addConstraint(Sketcher.Constraint("DistanceY", 0, 2, 0, 1, 1.7))
sketch22.addConstraint(Sketcher.Constraint("DistanceY", -1, 1, 0, 2, 8.0))
sketch22.addConstraint(Sketcher.Constraint("DistanceX", 0, 2, -1, 1, 39.1))
pad22 = body23.newObject("PartDesign::Pad", "Pad021")
pad22.Profile = sketch22
pad22.Length = 15
body24 = doc.addObject("PartDesign::Body", "Body023")

sketch23 = body24.newObject("Sketcher::SketchObject", "Sketch022")
sketch23.AttachmentSupport = (doc.getObject("XY_Plane023"), [""])
sketch23.MapMode = "FlatFace"
sketch23.AttachmentOffset = App.Placement(Vector(0, 0, 3), App.Rotation())
add_polygon(sketch23, [(-41.1, 9.7), (-41.1, 8), (-40.1, 8), (-40.1, 9.7)])
sketch23.addConstraint(Sketcher.Constraint("Vertical", 0))
sketch23.addConstraint(Sketcher.Constraint("Horizontal", 1))
sketch23.addConstraint(Sketcher.Constraint("Vertical", 2))
sketch23.addConstraint(Sketcher.Constraint("Horizontal", 3))
sketch23.addConstraint(Sketcher.Constraint("DistanceX", 1, 1, 1, 2, 1.0))
sketch23.addConstraint(Sketcher.Constraint("DistanceY", 0, 2, 0, 1, 1.7))
sketch23.addConstraint(Sketcher.Constraint("DistanceY", -1, 1, 0, 2, 8.0))
sketch23.addConstraint(Sketcher.Constraint("DistanceX", 0, 2, -1, 1, 41.1))
pad23 = body24.newObject("PartDesign::Pad", "Pad022")
pad23.Profile = sketch23
pad23.Length = 15
body25 = doc.addObject("PartDesign::Body", "Body024")

sketch24 = body25.newObject("Sketcher::SketchObject", "Sketch023")
sketch24.AttachmentSupport = (doc.getObject("XY_Plane024"), [""])
sketch24.MapMode = "FlatFace"
sketch24.AttachmentOffset = App.Placement(Vector(0, 0, 3), App.Rotation())
add_polygon(sketch24, [(-43.1, 9.7), (-43.1, 8), (-42.1, 8), (-42.1, 9.7)])
sketch24.addConstraint(Sketcher.Constraint("Vertical", 0))
sketch24.addConstraint(Sketcher.Constraint("Horizontal", 1))
sketch24.addConstraint(Sketcher.Constraint("Vertical", 2))
sketch24.addConstraint(Sketcher.Constraint("Horizontal", 3))
sketch24.addConstraint(Sketcher.Constraint("DistanceX", 1, 1, 1, 2, 1.0))
sketch24.addConstraint(Sketcher.Constraint("DistanceY", 0, 2, 0, 1, 1.7))
sketch24.addConstraint(Sketcher.Constraint("DistanceY", -1, 1, 0, 2, 8.0))
sketch24.addConstraint(Sketcher.Constraint("DistanceX", 0, 2, -1, 1, 43.1))
pad24 = body25.newObject("PartDesign::Pad", "Pad023")
pad24.Profile = sketch24
pad24.Length = 15
body26 = doc.addObject("PartDesign::Body", "Body025")

sketch25 = body26.newObject("Sketcher::SketchObject", "Sketch024")
sketch25.AttachmentSupport = (doc.getObject("XY_Plane025"), [""])
sketch25.MapMode = "FlatFace"
sketch25.AttachmentOffset = App.Placement(Vector(0, 0, 3), App.Rotation())
add_polygon(sketch25, [(-45.1, 9.7), (-45.1, 8), (-44.1, 8), (-44.1, 9.7)])
sketch25.addConstraint(Sketcher.Constraint("Vertical", 0))
sketch25.addConstraint(Sketcher.Constraint("Horizontal", 1))
sketch25.addConstraint(Sketcher.Constraint("Vertical", 2))
sketch25.addConstraint(Sketcher.Constraint("Horizontal", 3))
sketch25.addConstraint(Sketcher.Constraint("DistanceX", 1, 1, 1, 2, 1.0))
sketch25.addConstraint(Sketcher.Constraint("DistanceY", 0, 2, 0, 1, 1.7))
sketch25.addConstraint(Sketcher.Constraint("DistanceY", -1, 1, 0, 2, 8.0))
sketch25.addConstraint(Sketcher.Constraint("DistanceX", 0, 2, -1, 1, 45.1))
pad25 = body26.newObject("PartDesign::Pad", "Pad024")
pad25.Profile = sketch25
pad25.Length = 15
body27 = doc.addObject("PartDesign::Body", "Body026")

sketch26 = body27.newObject("Sketcher::SketchObject", "Sketch025")
sketch26.AttachmentSupport = (doc.getObject("XY_Plane026"), [""])
sketch26.MapMode = "FlatFace"
sketch26.AttachmentOffset = App.Placement(Vector(0, 0, 3), App.Rotation())
add_polygon(sketch26, [(-47.1, 9.7), (-47.1, 8), (-46.1, 8), (-46.1, 9.7)])
sketch26.addConstraint(Sketcher.Constraint("Vertical", 0))
sketch26.addConstraint(Sketcher.Constraint("Horizontal", 1))
sketch26.addConstraint(Sketcher.Constraint("Vertical", 2))
sketch26.addConstraint(Sketcher.Constraint("Horizontal", 3))
sketch26.addConstraint(Sketcher.Constraint("DistanceX", 1, 1, 1, 2, 1.0))
sketch26.addConstraint(Sketcher.Constraint("DistanceY", 0, 2, 0, 1, 1.7))
sketch26.addConstraint(Sketcher.Constraint("DistanceY", -1, 1, 0, 2, 8.0))
sketch26.addConstraint(Sketcher.Constraint("DistanceX", 0, 2, -1, 1, 47.1))
pad26 = body27.newObject("PartDesign::Pad", "Pad025")
pad26.Profile = sketch26
pad26.Length = 15
body28 = doc.addObject("PartDesign::Body", "Body027")
body28.AllowCompound = True

sketch27 = body28.newObject("Sketcher::SketchObject", "Sketch026")
sketch27.AttachmentSupport = (doc.getObject("XY_Plane027"), [""])
sketch27.MapMode = "FlatFace"
sketch27.AttachmentOffset = App.Placement(Vector(0, 0, 3), App.Rotation())
add_polygon(sketch27, [(-1.1, 9.7), (-1.1, 8), (-0.1, 8), (-0.1, 9.7)])
sketch27.addConstraint(Sketcher.Constraint("Vertical", 0))
sketch27.addConstraint(Sketcher.Constraint("Horizontal", 1))
sketch27.addConstraint(Sketcher.Constraint("Vertical", 2))
sketch27.addConstraint(Sketcher.Constraint("Horizontal", 3))
sketch27.addConstraint(Sketcher.Constraint("DistanceX", 1, 1, 1, 2, 1.0))
sketch27.addConstraint(Sketcher.Constraint("DistanceY", 0, 2, 0, 1, 1.7))
sketch27.addConstraint(Sketcher.Constraint("DistanceY", -1, 1, 0, 2, 8.0))
sketch27.addConstraint(Sketcher.Constraint("DistanceX", 0, 2, -1, 1, 1.1))
pad27 = body28.newObject("PartDesign::Pad", "Pad026")
pad27.Profile = sketch27
pad27.Length = 15
doc.recompute()

boolean3 = body28.newObject("PartDesign::Boolean", "Boolean002")
boolean3.Type = "Fuse"
boolean3.addObjects([body5])
doc.recompute()

boolean4 = body28.newObject("PartDesign::Boolean", "Boolean003")
boolean4.Type = "Fuse"
boolean4.addObjects([body6])
doc.recompute()

boolean5 = body28.newObject("PartDesign::Boolean", "Boolean004")
boolean5.Type = "Fuse"
boolean5.addObjects([body7])
doc.recompute()

boolean6 = body28.newObject("PartDesign::Boolean", "Boolean005")
boolean6.Type = "Fuse"
boolean6.addObjects([body8])
doc.recompute()

boolean7 = body28.newObject("PartDesign::Boolean", "Boolean006")
boolean7.Type = "Fuse"
boolean7.addObjects([body9])
doc.recompute()

boolean8 = body28.newObject("PartDesign::Boolean", "Boolean007")
boolean8.Type = "Fuse"
boolean8.addObjects([body10])
doc.recompute()

boolean9 = body28.newObject("PartDesign::Boolean", "Boolean008")
boolean9.Type = "Fuse"
boolean9.addObjects([body11])
doc.recompute()

boolean10 = body28.newObject("PartDesign::Boolean", "Boolean009")
boolean10.Type = "Fuse"
boolean10.addObjects([body12])
doc.recompute()

boolean11 = body28.newObject("PartDesign::Boolean", "Boolean010")
boolean11.Type = "Fuse"
boolean11.addObjects([body13])
doc.recompute()

boolean12 = body28.newObject("PartDesign::Boolean", "Boolean011")
boolean12.Type = "Fuse"
boolean12.addObjects([body14])
doc.recompute()

boolean13 = body28.newObject("PartDesign::Boolean", "Boolean012")
boolean13.Type = "Fuse"
boolean13.addObjects([body15])
doc.recompute()

boolean14 = body28.newObject("PartDesign::Boolean", "Boolean013")
boolean14.Type = "Fuse"
boolean14.addObjects([body16])
doc.recompute()

boolean15 = body28.newObject("PartDesign::Boolean", "Boolean014")
boolean15.Type = "Fuse"
boolean15.addObjects([body17])
doc.recompute()

boolean16 = body28.newObject("PartDesign::Boolean", "Boolean015")
boolean16.Type = "Fuse"
boolean16.addObjects([body18])
doc.recompute()

boolean17 = body28.newObject("PartDesign::Boolean", "Boolean016")
boolean17.Type = "Fuse"
boolean17.addObjects([body19])
doc.recompute()

boolean18 = body28.newObject("PartDesign::Boolean", "Boolean017")
boolean18.Type = "Fuse"
boolean18.addObjects([body20])
doc.recompute()

boolean19 = body28.newObject("PartDesign::Boolean", "Boolean018")
boolean19.Type = "Fuse"
boolean19.addObjects([body21])
doc.recompute()

boolean20 = body28.newObject("PartDesign::Boolean", "Boolean019")
boolean20.Type = "Fuse"
boolean20.addObjects([body22])
doc.recompute()

boolean21 = body28.newObject("PartDesign::Boolean", "Boolean020")
boolean21.Type = "Fuse"
boolean21.addObjects([body23])
doc.recompute()

boolean22 = body28.newObject("PartDesign::Boolean", "Boolean021")
boolean22.Type = "Fuse"
boolean22.addObjects([body24])
doc.recompute()

boolean23 = body28.newObject("PartDesign::Boolean", "Boolean022")
boolean23.Type = "Fuse"
boolean23.addObjects([body25])
doc.recompute()

boolean24 = body28.newObject("PartDesign::Boolean", "Boolean023")
boolean24.Type = "Fuse"
boolean24.addObjects([body26])
doc.recompute()

boolean25 = body28.newObject("PartDesign::Boolean", "Boolean024")
boolean25.Type = "Fuse"
boolean25.addObjects([body27])
body29 = doc.addObject("PartDesign::Body", "Body028")

sketch28 = body29.newObject("Sketcher::SketchObject", "Sketch027")
sketch28.AttachmentSupport = (doc.getObject("XY_Plane028"), [""])
sketch28.MapMode = "FlatFace"
sketch28.AttachmentOffset = App.Placement(Vector(0, 0, 3), App.Rotation())
add_polygon(sketch28, [(-27, 10), (-27, -1), (-23, -1), (-23, 10)])
sketch28.addConstraint(Sketcher.Constraint("Vertical", 0))
sketch28.addConstraint(Sketcher.Constraint("Horizontal", 1))
sketch28.addConstraint(Sketcher.Constraint("Vertical", 2))
sketch28.addConstraint(Sketcher.Constraint("Horizontal", 3))
sketch28.addConstraint(Sketcher.Constraint("DistanceX", 1, 1, 1, 2, 4.0))
sketch28.addConstraint(Sketcher.Constraint("DistanceY", 0, 2, 0, 1, 11.0))
sketch28.addConstraint(Sketcher.Constraint("DistanceX", 0, 2, -1, 1, 27.0))
sketch28.addConstraint(Sketcher.Constraint("DistanceY", 0, 2, -1, 1, 1.0))
pad28 = body29.newObject("PartDesign::Pad", "Pad027")
pad28.Profile = sketch28
pad28.Length = 15
body30 = doc.addObject("PartDesign::Body", "Body029")

sketch29 = body30.newObject("Sketcher::SketchObject", "Sketch028")
sketch29.AttachmentSupport = (doc.getObject("XY_Plane029"), [""])
sketch29.MapMode = "FlatFace"
sketch29.AttachmentOffset = App.Placement(Vector(0, 0, -2), App.Rotation())
add_polygon(sketch29, [(-32, 30), (-32, 17), (-18, 17), (-18, 30)])
sketch29.addConstraint(Sketcher.Constraint("Vertical", 0))
sketch29.addConstraint(Sketcher.Constraint("Horizontal", 1))
sketch29.addConstraint(Sketcher.Constraint("Vertical", 2))
sketch29.addConstraint(Sketcher.Constraint("Horizontal", 3))
sketch29.addConstraint(Sketcher.Constraint("Equal", 3, 0))
sketch29.addConstraint(Sketcher.Constraint("DistanceX", 1, 1, 1, 2, 13.0))
sketch29.addConstraint(Sketcher.Constraint("DistanceY", -1, 1, 0, 2, 17.0))
sketch29.addConstraint(Sketcher.Constraint("DistanceX", 0, 2, -1, 1, 31.5))
pad29 = body30.newObject("PartDesign::Pad", "Pad028")
pad29.Profile = sketch29
pad29.Length = 20
body31 = doc.addObject("PartDesign::Body", "Body030")
body31.AllowCompound = True

sketch30 = body31.newObject("Sketcher::SketchObject", "Sketch029")
sketch30.AttachmentSupport = (doc.getObject("XY_Plane030"), [""])
sketch30.MapMode = "FlatFace"
sketch30.AttachmentOffset = App.Placement(Vector(0, 0, 3), App.Rotation())
add_polygon(sketch30, [(-66, 10.1), (-66, 9.5), (1, 9.5), (1, 10.1)])
sketch30.addConstraint(Sketcher.Constraint("Vertical", 0))
sketch30.addConstraint(Sketcher.Constraint("Horizontal", 1))
sketch30.addConstraint(Sketcher.Constraint("Vertical", 2))
sketch30.addConstraint(Sketcher.Constraint("Horizontal", 3))
sketch30.addConstraint(Sketcher.Constraint("DistanceX", 1, 1, 1, 2, 67.0))
sketch30.addConstraint(Sketcher.Constraint("DistanceX", 0, 2, -1, 1, 66.0))
sketch30.addConstraint(Sketcher.Constraint("DistanceY", 0, 2, 0, 1, 0.55))
sketch30.addConstraint(Sketcher.Constraint("DistanceY", -1, 1, 0, 2, 9.5))
pad30 = body31.newObject("PartDesign::Pad", "Pad029")
pad30.Profile = sketch30
pad30.Length = 15
doc.recompute()

boolean26 = body31.newObject("PartDesign::Boolean", "Boolean025")
boolean26.Type = "Fuse"
boolean26.addObjects([body4])
doc.recompute()

boolean27 = body31.newObject("PartDesign::Boolean", "Boolean026")
boolean27.Type = "Fuse"
boolean27.addObjects([body28])
doc.recompute()

boolean28 = body31.newObject("PartDesign::Boolean", "Boolean027")
boolean28.Type = "Fuse"
boolean28.addObjects([body29])
doc.recompute()

boolean29 = body31.newObject("PartDesign::Boolean", "Boolean028")
boolean29.Type = "Fuse"
boolean29.addObjects([body30])
doc.recompute()

boolean30 = body31.newObject("PartDesign::Boolean", "Boolean029")
boolean30.Type = "Fuse"
boolean30.addObjects([body2])
body32 = doc.addObject("PartDesign::Body", "Body031")

sketch31 = body32.newObject("Sketcher::SketchObject", "Sketch030")
sketch31.AttachmentSupport = (doc.getObject("XY_Plane031"), [""])
sketch31.MapMode = "FlatFace"
sketch31.AttachmentOffset = App.Placement(Vector(0, 0, -1), App.Rotation())
add_polygon(sketch31, [(-42, 36), (-42, 11), (-8, 11), (-8, 36)])
sketch31.addConstraint(Sketcher.Constraint("Vertical", 0))
sketch31.addConstraint(Sketcher.Constraint("Horizontal", 1))
sketch31.addConstraint(Sketcher.Constraint("Vertical", 2))
sketch31.addConstraint(Sketcher.Constraint("Horizontal", 3))
sketch31.addConstraint(Sketcher.Constraint("DistanceX", 1, 1, 1, 2, 33.0))
sketch31.addConstraint(Sketcher.Constraint("DistanceY", 0, 2, 0, 1, 25.0))
sketch31.addConstraint(Sketcher.Constraint("DistanceY", -1, 1, 0, 2, 11.0))
sketch31.addConstraint(Sketcher.Constraint("DistanceX", 0, 2, -1, 1, 41.5))
pad31 = body32.newObject("PartDesign::Pad", "Pad030")
pad31.Profile = sketch31
pad31.Length = 16
body33 = doc.addObject("PartDesign::Body", "Body032")

sketch32 = body33.newObject("Sketcher::SketchObject", "Sketch031")
sketch32.AttachmentSupport = (doc.getObject("XY_Plane032"), [""])
sketch32.MapMode = "FlatFace"
sketch32.AttachmentOffset = App.Placement(Vector(0, 0, -1), App.Rotation())
add_polygon(sketch32, [(-50, 36), (-50, 32), (0, 32), (0, 36)])
sketch32.addConstraint(Sketcher.Constraint("Vertical", 0))
sketch32.addConstraint(Sketcher.Constraint("Horizontal", 1))
sketch32.addConstraint(Sketcher.Constraint("Vertical", 2))
sketch32.addConstraint(Sketcher.Constraint("Horizontal", 3))
sketch32.addConstraint(Sketcher.Constraint("PointOnObject", 1, 2, -2))
sketch32.addConstraint(Sketcher.Constraint("DistanceX", 1, 1, 1, 2, 50.0))
sketch32.addConstraint(Sketcher.Constraint("DistanceY", 0, 2, 0, 1, 4.0))
sketch32.addConstraint(Sketcher.Constraint("DistanceY", -1, 1, 0, 2, 32.0))
pad32 = body33.newObject("PartDesign::Pad", "Pad031")
pad32.Profile = sketch32
pad32.Length = 16
body34 = doc.addObject("PartDesign::Body", "Body033")

sketch33 = body34.newObject("Sketcher::SketchObject", "Sketch032")
sketch33.AttachmentSupport = (doc.getObject("XY_Plane033"), [""])
sketch33.MapMode = "FlatFace"
sketch33.AttachmentOffset = App.Placement(Vector(0, 0, -1), App.Rotation())
add_polygon(sketch33, [(-42, 15), (-42, 0), (-8, 0), (-8, 15)])
sketch33.addConstraint(Sketcher.Constraint("Vertical", 0))
sketch33.addConstraint(Sketcher.Constraint("Horizontal", 1))
sketch33.addConstraint(Sketcher.Constraint("Vertical", 2))
sketch33.addConstraint(Sketcher.Constraint("Horizontal", 3))
sketch33.addConstraint(Sketcher.Constraint("PointOnObject", 0, 2, -1))
sketch33.addConstraint(Sketcher.Constraint("DistanceX", 1, 1, 1, 2, 33.0))
sketch33.addConstraint(Sketcher.Constraint("DistanceY", 0, 2, 0, 1, 15.0))
sketch33.addConstraint(Sketcher.Constraint("DistanceX", 0, 2, -1, 1, 41.5))
pad33 = body34.newObject("PartDesign::Pad", "Pad032")
pad33.Profile = sketch33
pad33.Length = 16
doc.recompute()

boolean31 = body34.newObject("PartDesign::Boolean", "Boolean030")
boolean31.Type = "Fuse"
boolean31.addObjects([body32])
doc.recompute()

boolean32 = body34.newObject("PartDesign::Boolean", "Boolean031")
boolean32.Type = "Fuse"
boolean32.addObjects([body33])
doc.recompute()

boolean33 = body34.newObject("PartDesign::Boolean", "Boolean032")
boolean33.Type = "Cut"
boolean33.addObjects([body31])

doc.recompute()
